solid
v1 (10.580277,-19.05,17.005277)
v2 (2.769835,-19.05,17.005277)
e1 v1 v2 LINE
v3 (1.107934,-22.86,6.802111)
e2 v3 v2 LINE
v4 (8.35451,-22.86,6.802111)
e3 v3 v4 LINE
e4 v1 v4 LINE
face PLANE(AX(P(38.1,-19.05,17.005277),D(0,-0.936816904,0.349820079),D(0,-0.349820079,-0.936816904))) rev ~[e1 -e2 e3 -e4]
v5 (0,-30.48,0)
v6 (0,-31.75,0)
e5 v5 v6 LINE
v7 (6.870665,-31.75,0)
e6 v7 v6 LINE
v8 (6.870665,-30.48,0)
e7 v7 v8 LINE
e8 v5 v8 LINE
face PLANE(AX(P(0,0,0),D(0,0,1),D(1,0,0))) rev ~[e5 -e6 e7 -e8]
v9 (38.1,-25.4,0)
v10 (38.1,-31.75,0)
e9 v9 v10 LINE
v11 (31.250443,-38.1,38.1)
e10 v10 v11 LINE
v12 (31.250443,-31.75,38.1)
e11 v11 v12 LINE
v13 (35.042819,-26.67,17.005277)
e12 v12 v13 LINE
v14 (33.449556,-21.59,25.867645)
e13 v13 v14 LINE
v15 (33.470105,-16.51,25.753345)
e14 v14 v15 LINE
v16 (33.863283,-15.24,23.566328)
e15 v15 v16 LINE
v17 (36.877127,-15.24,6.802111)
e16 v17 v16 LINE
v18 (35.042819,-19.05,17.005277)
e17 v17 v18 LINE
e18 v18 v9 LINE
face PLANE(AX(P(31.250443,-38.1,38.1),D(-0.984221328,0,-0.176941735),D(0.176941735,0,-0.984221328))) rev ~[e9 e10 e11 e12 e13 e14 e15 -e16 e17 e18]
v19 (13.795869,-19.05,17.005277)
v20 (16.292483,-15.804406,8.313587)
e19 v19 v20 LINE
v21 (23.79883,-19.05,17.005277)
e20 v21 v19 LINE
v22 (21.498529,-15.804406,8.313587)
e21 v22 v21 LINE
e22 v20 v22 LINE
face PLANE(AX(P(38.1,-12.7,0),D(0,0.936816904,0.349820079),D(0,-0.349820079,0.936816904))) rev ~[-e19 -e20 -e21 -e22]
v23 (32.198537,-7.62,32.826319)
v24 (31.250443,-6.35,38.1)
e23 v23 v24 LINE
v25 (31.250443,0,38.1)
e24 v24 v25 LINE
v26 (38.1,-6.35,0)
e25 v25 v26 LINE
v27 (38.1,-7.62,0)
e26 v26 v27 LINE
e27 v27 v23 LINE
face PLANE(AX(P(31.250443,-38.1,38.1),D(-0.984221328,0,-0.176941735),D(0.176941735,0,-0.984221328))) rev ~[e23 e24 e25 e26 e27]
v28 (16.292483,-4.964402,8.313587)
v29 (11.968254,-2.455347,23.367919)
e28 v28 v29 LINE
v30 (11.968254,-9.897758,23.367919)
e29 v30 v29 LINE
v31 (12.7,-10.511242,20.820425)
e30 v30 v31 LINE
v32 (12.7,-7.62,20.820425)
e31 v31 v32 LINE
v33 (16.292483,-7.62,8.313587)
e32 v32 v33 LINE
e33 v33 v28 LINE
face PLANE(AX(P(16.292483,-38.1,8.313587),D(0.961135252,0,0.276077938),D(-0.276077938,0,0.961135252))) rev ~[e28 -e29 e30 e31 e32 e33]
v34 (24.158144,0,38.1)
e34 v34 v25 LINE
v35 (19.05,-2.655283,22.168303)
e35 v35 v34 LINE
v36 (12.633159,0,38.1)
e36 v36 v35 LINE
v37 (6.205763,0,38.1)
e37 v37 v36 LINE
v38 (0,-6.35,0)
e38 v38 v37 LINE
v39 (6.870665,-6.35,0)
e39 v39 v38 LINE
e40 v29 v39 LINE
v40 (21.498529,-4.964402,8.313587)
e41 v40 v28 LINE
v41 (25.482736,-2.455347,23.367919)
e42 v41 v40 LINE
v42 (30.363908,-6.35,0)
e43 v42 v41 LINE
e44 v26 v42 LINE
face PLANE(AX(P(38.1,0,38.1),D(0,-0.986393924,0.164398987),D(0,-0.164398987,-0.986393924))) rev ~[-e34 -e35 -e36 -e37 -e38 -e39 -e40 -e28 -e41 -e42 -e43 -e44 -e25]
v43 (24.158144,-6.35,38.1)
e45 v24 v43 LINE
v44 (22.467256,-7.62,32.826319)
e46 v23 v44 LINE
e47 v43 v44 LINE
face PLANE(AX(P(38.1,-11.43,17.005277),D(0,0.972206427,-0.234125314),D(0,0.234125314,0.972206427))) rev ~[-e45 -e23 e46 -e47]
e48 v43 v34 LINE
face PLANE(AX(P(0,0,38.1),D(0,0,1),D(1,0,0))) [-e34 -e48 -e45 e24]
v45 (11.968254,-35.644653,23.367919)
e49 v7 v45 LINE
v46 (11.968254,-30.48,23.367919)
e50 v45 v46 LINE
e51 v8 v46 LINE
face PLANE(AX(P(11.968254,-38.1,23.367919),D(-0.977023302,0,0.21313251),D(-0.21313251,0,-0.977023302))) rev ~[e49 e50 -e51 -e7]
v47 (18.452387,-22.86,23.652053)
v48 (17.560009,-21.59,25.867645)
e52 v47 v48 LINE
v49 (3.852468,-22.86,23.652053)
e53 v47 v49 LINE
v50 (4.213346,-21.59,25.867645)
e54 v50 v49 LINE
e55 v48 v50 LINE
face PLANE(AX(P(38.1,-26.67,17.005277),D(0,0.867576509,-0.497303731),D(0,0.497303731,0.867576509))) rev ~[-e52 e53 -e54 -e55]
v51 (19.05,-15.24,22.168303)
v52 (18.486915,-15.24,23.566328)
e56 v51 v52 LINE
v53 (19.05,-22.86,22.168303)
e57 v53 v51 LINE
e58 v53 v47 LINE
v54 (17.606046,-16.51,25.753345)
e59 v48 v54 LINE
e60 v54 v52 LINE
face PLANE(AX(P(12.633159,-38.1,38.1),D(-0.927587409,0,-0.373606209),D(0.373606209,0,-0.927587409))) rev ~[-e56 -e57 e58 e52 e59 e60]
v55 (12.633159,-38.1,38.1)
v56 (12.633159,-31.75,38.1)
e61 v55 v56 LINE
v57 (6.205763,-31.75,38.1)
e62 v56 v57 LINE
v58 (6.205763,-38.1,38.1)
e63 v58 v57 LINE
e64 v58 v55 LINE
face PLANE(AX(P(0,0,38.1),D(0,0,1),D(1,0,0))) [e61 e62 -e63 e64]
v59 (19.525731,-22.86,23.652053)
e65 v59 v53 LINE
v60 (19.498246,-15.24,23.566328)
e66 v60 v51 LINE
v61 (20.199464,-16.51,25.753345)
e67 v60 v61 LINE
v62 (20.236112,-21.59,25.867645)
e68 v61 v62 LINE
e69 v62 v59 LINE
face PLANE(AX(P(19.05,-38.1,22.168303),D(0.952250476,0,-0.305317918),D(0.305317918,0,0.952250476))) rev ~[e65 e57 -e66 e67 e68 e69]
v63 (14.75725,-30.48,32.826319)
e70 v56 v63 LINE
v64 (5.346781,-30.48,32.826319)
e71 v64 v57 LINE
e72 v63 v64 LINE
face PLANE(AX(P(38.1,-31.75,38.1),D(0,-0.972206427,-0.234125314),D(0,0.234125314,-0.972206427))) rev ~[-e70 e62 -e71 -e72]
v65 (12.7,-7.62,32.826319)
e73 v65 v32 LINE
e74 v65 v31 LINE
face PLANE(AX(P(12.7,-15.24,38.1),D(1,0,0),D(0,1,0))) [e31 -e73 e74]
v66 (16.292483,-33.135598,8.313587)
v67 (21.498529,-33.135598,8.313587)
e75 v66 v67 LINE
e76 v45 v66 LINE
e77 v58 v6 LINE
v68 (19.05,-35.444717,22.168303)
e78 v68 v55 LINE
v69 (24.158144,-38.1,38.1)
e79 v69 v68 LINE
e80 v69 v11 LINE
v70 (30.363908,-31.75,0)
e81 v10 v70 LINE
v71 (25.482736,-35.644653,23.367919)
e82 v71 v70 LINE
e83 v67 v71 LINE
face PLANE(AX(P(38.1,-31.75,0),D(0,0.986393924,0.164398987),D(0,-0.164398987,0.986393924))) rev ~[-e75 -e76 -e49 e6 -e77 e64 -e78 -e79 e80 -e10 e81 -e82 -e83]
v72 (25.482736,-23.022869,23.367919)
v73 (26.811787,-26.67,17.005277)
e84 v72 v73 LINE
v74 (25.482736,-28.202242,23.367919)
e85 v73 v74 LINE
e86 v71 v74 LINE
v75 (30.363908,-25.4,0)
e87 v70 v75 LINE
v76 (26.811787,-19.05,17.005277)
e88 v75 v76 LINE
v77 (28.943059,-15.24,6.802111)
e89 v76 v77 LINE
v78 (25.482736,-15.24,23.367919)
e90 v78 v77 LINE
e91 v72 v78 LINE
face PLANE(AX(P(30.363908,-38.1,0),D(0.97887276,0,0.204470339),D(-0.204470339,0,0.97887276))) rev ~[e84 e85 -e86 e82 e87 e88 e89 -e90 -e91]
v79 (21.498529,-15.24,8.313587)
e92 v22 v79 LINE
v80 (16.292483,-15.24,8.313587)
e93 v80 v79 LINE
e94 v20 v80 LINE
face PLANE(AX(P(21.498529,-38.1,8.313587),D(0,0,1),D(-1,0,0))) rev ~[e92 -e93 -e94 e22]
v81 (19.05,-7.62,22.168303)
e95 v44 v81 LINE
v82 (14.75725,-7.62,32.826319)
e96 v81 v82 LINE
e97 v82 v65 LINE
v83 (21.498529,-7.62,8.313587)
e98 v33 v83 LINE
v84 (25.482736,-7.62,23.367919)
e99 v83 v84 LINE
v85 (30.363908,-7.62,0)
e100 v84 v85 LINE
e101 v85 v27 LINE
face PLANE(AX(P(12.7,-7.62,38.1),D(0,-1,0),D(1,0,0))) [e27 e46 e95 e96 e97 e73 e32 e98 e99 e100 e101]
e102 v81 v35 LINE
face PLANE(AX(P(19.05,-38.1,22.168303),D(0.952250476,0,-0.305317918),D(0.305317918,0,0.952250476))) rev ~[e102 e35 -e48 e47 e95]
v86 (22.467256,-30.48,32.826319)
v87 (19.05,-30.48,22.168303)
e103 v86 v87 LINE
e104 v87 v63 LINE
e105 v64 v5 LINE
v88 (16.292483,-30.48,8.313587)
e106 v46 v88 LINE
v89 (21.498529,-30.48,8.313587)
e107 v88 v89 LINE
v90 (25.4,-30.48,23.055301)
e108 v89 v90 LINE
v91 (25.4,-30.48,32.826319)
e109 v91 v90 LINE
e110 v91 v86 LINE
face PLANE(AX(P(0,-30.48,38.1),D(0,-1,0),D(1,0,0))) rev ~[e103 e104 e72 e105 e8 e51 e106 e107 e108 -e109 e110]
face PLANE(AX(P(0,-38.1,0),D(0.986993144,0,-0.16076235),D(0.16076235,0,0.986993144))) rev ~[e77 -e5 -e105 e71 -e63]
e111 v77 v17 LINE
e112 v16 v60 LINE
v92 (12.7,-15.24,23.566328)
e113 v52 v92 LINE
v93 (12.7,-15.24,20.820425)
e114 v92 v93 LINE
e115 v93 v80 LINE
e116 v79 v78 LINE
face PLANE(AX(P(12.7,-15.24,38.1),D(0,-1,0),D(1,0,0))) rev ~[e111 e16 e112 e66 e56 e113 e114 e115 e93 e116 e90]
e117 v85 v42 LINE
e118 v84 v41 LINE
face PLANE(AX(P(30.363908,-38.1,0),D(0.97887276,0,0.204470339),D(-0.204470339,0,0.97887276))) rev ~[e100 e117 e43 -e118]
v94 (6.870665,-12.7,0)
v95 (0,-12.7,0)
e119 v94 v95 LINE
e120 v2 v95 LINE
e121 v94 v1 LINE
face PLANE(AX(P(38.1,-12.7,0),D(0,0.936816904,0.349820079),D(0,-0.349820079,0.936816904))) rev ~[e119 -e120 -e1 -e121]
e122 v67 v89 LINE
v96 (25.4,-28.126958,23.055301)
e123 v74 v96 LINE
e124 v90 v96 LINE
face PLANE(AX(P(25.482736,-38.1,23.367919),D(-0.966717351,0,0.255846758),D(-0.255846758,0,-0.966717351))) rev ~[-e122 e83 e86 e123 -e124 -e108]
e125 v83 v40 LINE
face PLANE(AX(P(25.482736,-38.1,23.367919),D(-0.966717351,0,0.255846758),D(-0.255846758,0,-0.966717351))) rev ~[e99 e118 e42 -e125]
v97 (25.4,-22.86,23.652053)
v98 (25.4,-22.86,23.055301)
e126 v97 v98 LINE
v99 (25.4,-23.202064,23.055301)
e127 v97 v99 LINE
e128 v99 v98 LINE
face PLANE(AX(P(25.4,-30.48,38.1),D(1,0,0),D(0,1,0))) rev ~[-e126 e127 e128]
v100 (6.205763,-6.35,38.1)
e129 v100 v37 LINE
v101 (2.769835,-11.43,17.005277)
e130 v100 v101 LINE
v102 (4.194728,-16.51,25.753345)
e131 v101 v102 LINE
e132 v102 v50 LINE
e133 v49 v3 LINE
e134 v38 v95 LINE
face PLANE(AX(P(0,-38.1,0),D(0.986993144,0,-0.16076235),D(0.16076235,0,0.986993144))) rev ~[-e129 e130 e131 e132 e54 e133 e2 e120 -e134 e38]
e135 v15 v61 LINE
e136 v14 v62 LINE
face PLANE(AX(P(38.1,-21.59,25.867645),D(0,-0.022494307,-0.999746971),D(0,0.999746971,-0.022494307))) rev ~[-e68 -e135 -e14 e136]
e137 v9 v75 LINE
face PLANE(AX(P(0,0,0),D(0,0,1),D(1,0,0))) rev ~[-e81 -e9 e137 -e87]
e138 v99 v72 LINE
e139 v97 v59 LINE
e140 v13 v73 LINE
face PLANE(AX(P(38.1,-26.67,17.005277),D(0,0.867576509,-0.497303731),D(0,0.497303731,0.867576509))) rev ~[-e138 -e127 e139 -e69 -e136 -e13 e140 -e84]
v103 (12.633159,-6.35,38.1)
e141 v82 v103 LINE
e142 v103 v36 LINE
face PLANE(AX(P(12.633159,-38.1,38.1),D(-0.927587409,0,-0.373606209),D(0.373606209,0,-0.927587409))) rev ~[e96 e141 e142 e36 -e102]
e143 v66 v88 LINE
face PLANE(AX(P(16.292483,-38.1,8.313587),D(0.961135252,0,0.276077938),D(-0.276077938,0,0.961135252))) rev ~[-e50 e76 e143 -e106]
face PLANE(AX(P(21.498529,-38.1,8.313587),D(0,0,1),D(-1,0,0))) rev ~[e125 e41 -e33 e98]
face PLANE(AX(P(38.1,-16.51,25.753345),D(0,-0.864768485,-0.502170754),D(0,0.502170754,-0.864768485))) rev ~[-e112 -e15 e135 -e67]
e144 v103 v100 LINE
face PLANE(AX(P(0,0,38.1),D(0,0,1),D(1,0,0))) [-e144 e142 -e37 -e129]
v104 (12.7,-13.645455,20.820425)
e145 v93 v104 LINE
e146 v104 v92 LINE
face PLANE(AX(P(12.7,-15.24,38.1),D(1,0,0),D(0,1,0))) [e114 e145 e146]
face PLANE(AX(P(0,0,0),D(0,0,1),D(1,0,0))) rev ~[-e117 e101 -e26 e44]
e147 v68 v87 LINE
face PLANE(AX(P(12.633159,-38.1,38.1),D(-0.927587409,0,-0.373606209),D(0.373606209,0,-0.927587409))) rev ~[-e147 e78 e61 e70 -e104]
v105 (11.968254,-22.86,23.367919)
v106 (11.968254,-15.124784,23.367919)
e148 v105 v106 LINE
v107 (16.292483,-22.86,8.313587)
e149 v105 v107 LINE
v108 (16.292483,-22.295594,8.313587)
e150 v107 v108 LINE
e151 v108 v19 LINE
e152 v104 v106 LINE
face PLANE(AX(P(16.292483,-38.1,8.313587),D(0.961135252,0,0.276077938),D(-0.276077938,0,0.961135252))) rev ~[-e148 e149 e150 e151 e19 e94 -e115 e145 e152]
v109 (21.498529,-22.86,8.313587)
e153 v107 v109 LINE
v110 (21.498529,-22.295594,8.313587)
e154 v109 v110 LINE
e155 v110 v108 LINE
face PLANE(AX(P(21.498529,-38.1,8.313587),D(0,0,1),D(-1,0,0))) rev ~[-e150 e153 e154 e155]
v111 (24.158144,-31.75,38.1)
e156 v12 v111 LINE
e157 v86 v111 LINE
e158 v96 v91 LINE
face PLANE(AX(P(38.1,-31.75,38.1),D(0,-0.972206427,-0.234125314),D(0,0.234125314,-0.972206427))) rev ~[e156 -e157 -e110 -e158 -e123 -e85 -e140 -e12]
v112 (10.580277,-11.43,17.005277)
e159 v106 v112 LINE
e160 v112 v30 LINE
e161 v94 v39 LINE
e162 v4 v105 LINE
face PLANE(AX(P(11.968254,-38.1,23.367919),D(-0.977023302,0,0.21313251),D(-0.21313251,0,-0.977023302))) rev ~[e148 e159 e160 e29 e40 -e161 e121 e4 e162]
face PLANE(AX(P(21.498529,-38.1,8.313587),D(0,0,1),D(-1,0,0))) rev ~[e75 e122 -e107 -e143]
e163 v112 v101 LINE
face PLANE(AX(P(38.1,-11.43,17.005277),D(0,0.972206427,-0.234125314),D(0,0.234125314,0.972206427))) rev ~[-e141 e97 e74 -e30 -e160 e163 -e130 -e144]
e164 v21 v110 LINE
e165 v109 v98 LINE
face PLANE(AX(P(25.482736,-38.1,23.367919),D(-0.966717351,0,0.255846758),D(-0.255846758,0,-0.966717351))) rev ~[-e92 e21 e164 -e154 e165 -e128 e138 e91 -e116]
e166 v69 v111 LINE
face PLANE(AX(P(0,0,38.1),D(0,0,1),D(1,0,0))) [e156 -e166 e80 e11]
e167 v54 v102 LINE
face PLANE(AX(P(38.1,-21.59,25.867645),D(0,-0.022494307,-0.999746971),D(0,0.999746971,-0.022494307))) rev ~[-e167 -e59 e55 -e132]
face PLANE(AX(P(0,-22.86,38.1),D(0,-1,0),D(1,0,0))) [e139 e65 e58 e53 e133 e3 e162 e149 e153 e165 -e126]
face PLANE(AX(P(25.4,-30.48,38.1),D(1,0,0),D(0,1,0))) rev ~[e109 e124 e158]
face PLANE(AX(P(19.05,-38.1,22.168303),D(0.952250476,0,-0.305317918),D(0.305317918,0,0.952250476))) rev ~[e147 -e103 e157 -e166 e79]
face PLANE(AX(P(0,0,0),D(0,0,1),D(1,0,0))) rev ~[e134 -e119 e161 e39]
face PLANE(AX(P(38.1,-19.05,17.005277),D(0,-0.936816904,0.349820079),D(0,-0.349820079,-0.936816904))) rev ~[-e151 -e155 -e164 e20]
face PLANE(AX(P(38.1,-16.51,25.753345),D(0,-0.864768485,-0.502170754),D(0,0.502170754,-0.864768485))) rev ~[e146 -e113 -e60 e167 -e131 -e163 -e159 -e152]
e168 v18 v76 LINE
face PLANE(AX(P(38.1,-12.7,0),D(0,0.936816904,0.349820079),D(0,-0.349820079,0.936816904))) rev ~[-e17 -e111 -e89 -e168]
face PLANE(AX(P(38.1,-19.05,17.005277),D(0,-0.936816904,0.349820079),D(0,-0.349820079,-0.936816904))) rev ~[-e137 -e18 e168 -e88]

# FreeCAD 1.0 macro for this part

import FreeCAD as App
import Part
import Sketcher

V = App.Vector
Q = App.Units.Quantity


def add_polygon(sketch, points):
    """Adds a closed chain of lines whose ends are joined by coincident constraints."""
    first, n = sketch.GeometryCount, len(points)
    for a, b in zip(points, points[1:] + points[:1]):
        sketch.addGeometry(Part.LineSegment(App.Vector(*a, 0), App.Vector(*b, 0)), False)
    for i in range(n):
        sketch.addConstraint(Sketcher.Constraint("Coincident", first + i, 2, first + (i + 1) % n, 1))

doc = App.newDocument("Part")
body = doc.addObject("PartDesign::Body", "Body")

# Sketch on XZ plane
sketch1 = body.newObject("Sketcher::SketchObject", "Sketch")
sketch1.AttachmentSupport = (doc.getObject("XZ_Plane"), [""])
sketch1.MapMode = "FlatFace"
add_polygon(sketch1, [(0, 38), (0, 0), (38, 0), (38, 38)])  # lines 0-3
sketch1.addConstraint([
    Sketcher.Constraint("Vertical", 0),
    Sketcher.Constraint("Horizontal", 1),
    Sketcher.Constraint("Vertical", 2),
    Sketcher.Constraint("Horizontal", 3),
    Sketcher.Constraint("Coincident", 0, 2, -1, 1),
    Sketcher.Constraint("Equal", 3, 0),
    Sketcher.Constraint("DistanceX", 1, 1, 1, 2, Q("1.5 in")),
])
pad1 = body.newObject("PartDesign::Pad", "Pad")
pad1.Profile = sketch1
pad1.Length = Q("1.5 in")

# Sketch on YZ plane
sketch2 = body.newObject("Sketcher::SketchObject", "Sketch001")
sketch2.AttachmentSupport = (doc.getObject("YZ_Plane"), [""])
sketch2.MapMode = "FlatFace"
sketch2.AttachmentOffset = App.Placement(V(0, 0, 1.5 * 25.4), App.Rotation())
add_polygon(sketch2, [(-6, 38), (-32, 38), (-27, 17), (-22, 26), (-17, 26), (-11, 17)])  # lines 0-5
add_polygon(sketch2, [(-32, 0), (-38, 38), (-38, 0)])  # lines 6-8
add_polygon(sketch2, [(0, 0), (0, 38), (-6, 0)])  # lines 9-11
add_polygon(sketch2, [(-19, 17), (-25, 0), (-13, 0)])  # lines 12-14
sketch2.addConstraint([
    Sketcher.Constraint("Horizontal", 0),
    Sketcher.Constraint("Vertical", 7),
    Sketcher.Constraint("Horizontal", 8),
    Sketcher.Constraint("Vertical", 9),
    Sketcher.Constraint("Horizontal", 11),
    Sketcher.Constraint("Horizontal", 13),
    Sketcher.Constraint("Coincident", 11, 2, -1, 1),
    Sketcher.Constraint("PointOnObject", 7, 2, -1),
    Sketcher.Constraint("PointOnObject", 12, 2, -1),
    Sketcher.Constraint("Horizontal", 1, 2, 4, 2),
    Sketcher.Constraint("Horizontal", 5, 2, 6, 2),
    Sketcher.Constraint("Horizontal", 6, 2, 9, 2),
    Sketcher.Constraint("Horizontal", 4, 2, 14, 2),
    Sketcher.Constraint("Vertical", 0, 2, 8, 2),
    Sketcher.Constraint("Vertical", 5, 2, 10, 2),
    Sketcher.Constraint("Equal", 8, 11),
    Sketcher.Constraint("Equal", 1, 5),
    Sketcher.Constraint("Equal", 12, 14),
    Sketcher.Constraint("DistanceX", 0, 2, 0, 1, Q("1 in")),
    Sketcher.Constraint("DistanceX", 13, 1, 13, 2, Q("0.5 in")),
    Sketcher.Constraint("DistanceY", 7, 2, 7, 1, Q("1.5 in")),
    Sketcher.Constraint("DistanceX", 12, 2, -1, 1, Q("1 in")),
    Sketcher.Constraint("DistanceX", 8, 1, 8, 2, Q("0.25 in")),
    Sketcher.Constraint("DistanceX", 0, 2, 1, 2, Q("0.2 in")),
    Sketcher.Constraint("DistanceX", 1, 2, 2, 2, Q("0.2 in")),
    Sketcher.Constraint("DistanceX", 2, 2, 3, 2, Q("0.2 in")),
    Sketcher.Constraint("DistanceY", 3, 2, 2, 2, Q("0.0045 in")),
    Sketcher.Constraint("Distance", 1, Q("21.697782 mm")),
    Sketcher.Constraint("Distance", 4, Q("10.116081 mm")),
])
pocket1 = body.newObject("PartDesign::Pocket", "Pocket")
pocket1.Profile = sketch2
pocket1.Length = Q("1.5 in")

# Sketch on XZ plane
sketch3 = body.newObject("Sketcher::SketchObject", "Sketch002")
sketch3.AttachmentSupport = (doc.getObject("XZ_Plane"), [""])
sketch3.MapMode = "FlatFace"
sketch3.AttachmentOffset = App.Placement(V(0, 0, 1.5 * 25.4), App.Rotation())
add_polygon(sketch3, [(0, 38), (0, 0), (6, 38)])  # lines 0-2
add_polygon(sketch3, [(12, 23), (7, 0), (30, 0), (25, 23), (21, 8), (16, 8)])  # lines 3-8
add_polygon(sketch3, [(31, 38), (38, 0), (38, 38)])  # lines 9-11
add_polygon(sketch3, [(24, 38), (13, 38), (19, 22)])  # lines 12-14
sketch3.addConstraint([
    Sketcher.Constraint("Vertical", 0),
    Sketcher.Constraint("Horizontal", 2),
    Sketcher.Constraint("Horizontal", 4),
    Sketcher.Constraint("Horizontal", 7),
    Sketcher.Constraint("Vertical", 10),
    Sketcher.Constraint("Horizontal", 11),
    Sketcher.Constraint("Horizontal", 12),
    Sketcher.Constraint("Coincident", 0, 2, -1, 1),
    Sketcher.Constraint("PointOnObject", 3, 2, -1),
    Sketcher.Constraint("PointOnObject", 9, 2, -1),
    Sketcher.Constraint("Horizontal", 5, 2, 8, 2),
    Sketcher.Constraint("Horizontal", 2, 2, 10, 2),
    Sketcher.Constraint("Horizontal", 11, 2, 12, 2),
    Sketcher.Constraint("DistanceY", 0, 2, 0, 1, Q("1.5 in")),
    Sketcher.Constraint("DistanceX", -1, 1, 9, 2, Q("1.5 in")),
    Sketcher.Constraint("DistanceX", -1, 1, 13, 2, Q("0.75 in")),
    Sketcher.Constraint("DistanceX", 3, 2, 6, 2, Q("0.5759002 in")),
    Sketcher.Constraint("DistanceX", 1, 2, 3, 2, Q("0.664902 mm")),
    Sketcher.Constraint("DistanceX", 14, 2, 11, 2, Q("7.092299 mm")),
    Sketcher.Constraint("Distance", 1, Q("38.602092 mm")),
    Sketcher.Constraint("Distance", 6, Q("15.57263 mm")),
    Sketcher.Constraint("DistanceX", 4, 1, 4, 2, Q("23.493243 mm")),
    Sketcher.Constraint("DistanceX", 7, 2, 7, 1, Q("5.206046 mm")),
    Sketcher.Constraint("DistanceX", 11, 2, 11, 1, Q("6.849557 mm")),
    Sketcher.Constraint("DistanceX", 12, 2, 12, 1, Q("11.524985 mm")),
    Sketcher.Constraint("DistanceY", -1, 1, 5, 2, Q("23.367919 mm")),
    Sketcher.Constraint("DistanceX", 5, 2, 4, 2, Q("4.881172 mm")),
    Sketcher.Constraint("DistanceX", 8, 2, 5, 2, Q("13.514482 mm")),
    Sketcher.Constraint("Distance", 13, Q("17.175413 mm")),
])
pocket2 = body.newObject("PartDesign::Pocket", "Pocket001")
pocket2.Profile = sketch3
pocket2.Length = Q("1.5 in")

# Sketch on XY plane
sketch4 = body.newObject("Sketcher::SketchObject", "Sketch003")
sketch4.AttachmentSupport = (doc.getObject("XY_Plane"), [""])
sketch4.MapMode = "FlatFace"
sketch4.AttachmentOffset = App.Placement(V(0, 0, 1.5 * 25.4), App.Rotation())
add_polygon(sketch4, [(13, -8), (13, -15), (38, -15), (38, -8)])  # lines 0-3
add_polygon(sketch4, [(0, -23), (0, -30), (25, -30), (25, -23)])  # lines 4-7
sketch4.addConstraint([
    Sketcher.Constraint("Vertical", 0),
    Sketcher.Constraint("Horizontal", 1),
    Sketcher.Constraint("Vertical", 2),
    Sketcher.Constraint("Horizontal", 3),
    Sketcher.Constraint("Vertical", 4),
    Sketcher.Constraint("Horizontal", 5),
    Sketcher.Constraint("Vertical", 6),
    Sketcher.Constraint("Horizontal", 7),
    Sketcher.Constraint("PointOnObject", 4, 2, -2),
    Sketcher.Constraint("Equal", 3, 5),
    Sketcher.Constraint("Equal", 2, 4),
    Sketcher.Constraint("DistanceX", 1, 1, 1, 2, Q("1 in")),
    Sketcher.Constraint("DistanceY", 0, 2, 0, 1, Q("0.3 in")),
    Sketcher.Constraint("DistanceX", -1, 1, 0, 2, Q("0.5 in")),
    Sketcher.Constraint("DistanceY", 0, 2, -1, 1, Q("0.6 in")),
    Sketcher.Constraint("DistanceY", 4, 2, -1, 1, Q("1.2 in")),
])
pocket3 = body.newObject("PartDesign::Pocket", "Pocket002")
pocket3.Profile = sketch4
pocket3.Length = Q("1.5 in")

doc.recompute()
